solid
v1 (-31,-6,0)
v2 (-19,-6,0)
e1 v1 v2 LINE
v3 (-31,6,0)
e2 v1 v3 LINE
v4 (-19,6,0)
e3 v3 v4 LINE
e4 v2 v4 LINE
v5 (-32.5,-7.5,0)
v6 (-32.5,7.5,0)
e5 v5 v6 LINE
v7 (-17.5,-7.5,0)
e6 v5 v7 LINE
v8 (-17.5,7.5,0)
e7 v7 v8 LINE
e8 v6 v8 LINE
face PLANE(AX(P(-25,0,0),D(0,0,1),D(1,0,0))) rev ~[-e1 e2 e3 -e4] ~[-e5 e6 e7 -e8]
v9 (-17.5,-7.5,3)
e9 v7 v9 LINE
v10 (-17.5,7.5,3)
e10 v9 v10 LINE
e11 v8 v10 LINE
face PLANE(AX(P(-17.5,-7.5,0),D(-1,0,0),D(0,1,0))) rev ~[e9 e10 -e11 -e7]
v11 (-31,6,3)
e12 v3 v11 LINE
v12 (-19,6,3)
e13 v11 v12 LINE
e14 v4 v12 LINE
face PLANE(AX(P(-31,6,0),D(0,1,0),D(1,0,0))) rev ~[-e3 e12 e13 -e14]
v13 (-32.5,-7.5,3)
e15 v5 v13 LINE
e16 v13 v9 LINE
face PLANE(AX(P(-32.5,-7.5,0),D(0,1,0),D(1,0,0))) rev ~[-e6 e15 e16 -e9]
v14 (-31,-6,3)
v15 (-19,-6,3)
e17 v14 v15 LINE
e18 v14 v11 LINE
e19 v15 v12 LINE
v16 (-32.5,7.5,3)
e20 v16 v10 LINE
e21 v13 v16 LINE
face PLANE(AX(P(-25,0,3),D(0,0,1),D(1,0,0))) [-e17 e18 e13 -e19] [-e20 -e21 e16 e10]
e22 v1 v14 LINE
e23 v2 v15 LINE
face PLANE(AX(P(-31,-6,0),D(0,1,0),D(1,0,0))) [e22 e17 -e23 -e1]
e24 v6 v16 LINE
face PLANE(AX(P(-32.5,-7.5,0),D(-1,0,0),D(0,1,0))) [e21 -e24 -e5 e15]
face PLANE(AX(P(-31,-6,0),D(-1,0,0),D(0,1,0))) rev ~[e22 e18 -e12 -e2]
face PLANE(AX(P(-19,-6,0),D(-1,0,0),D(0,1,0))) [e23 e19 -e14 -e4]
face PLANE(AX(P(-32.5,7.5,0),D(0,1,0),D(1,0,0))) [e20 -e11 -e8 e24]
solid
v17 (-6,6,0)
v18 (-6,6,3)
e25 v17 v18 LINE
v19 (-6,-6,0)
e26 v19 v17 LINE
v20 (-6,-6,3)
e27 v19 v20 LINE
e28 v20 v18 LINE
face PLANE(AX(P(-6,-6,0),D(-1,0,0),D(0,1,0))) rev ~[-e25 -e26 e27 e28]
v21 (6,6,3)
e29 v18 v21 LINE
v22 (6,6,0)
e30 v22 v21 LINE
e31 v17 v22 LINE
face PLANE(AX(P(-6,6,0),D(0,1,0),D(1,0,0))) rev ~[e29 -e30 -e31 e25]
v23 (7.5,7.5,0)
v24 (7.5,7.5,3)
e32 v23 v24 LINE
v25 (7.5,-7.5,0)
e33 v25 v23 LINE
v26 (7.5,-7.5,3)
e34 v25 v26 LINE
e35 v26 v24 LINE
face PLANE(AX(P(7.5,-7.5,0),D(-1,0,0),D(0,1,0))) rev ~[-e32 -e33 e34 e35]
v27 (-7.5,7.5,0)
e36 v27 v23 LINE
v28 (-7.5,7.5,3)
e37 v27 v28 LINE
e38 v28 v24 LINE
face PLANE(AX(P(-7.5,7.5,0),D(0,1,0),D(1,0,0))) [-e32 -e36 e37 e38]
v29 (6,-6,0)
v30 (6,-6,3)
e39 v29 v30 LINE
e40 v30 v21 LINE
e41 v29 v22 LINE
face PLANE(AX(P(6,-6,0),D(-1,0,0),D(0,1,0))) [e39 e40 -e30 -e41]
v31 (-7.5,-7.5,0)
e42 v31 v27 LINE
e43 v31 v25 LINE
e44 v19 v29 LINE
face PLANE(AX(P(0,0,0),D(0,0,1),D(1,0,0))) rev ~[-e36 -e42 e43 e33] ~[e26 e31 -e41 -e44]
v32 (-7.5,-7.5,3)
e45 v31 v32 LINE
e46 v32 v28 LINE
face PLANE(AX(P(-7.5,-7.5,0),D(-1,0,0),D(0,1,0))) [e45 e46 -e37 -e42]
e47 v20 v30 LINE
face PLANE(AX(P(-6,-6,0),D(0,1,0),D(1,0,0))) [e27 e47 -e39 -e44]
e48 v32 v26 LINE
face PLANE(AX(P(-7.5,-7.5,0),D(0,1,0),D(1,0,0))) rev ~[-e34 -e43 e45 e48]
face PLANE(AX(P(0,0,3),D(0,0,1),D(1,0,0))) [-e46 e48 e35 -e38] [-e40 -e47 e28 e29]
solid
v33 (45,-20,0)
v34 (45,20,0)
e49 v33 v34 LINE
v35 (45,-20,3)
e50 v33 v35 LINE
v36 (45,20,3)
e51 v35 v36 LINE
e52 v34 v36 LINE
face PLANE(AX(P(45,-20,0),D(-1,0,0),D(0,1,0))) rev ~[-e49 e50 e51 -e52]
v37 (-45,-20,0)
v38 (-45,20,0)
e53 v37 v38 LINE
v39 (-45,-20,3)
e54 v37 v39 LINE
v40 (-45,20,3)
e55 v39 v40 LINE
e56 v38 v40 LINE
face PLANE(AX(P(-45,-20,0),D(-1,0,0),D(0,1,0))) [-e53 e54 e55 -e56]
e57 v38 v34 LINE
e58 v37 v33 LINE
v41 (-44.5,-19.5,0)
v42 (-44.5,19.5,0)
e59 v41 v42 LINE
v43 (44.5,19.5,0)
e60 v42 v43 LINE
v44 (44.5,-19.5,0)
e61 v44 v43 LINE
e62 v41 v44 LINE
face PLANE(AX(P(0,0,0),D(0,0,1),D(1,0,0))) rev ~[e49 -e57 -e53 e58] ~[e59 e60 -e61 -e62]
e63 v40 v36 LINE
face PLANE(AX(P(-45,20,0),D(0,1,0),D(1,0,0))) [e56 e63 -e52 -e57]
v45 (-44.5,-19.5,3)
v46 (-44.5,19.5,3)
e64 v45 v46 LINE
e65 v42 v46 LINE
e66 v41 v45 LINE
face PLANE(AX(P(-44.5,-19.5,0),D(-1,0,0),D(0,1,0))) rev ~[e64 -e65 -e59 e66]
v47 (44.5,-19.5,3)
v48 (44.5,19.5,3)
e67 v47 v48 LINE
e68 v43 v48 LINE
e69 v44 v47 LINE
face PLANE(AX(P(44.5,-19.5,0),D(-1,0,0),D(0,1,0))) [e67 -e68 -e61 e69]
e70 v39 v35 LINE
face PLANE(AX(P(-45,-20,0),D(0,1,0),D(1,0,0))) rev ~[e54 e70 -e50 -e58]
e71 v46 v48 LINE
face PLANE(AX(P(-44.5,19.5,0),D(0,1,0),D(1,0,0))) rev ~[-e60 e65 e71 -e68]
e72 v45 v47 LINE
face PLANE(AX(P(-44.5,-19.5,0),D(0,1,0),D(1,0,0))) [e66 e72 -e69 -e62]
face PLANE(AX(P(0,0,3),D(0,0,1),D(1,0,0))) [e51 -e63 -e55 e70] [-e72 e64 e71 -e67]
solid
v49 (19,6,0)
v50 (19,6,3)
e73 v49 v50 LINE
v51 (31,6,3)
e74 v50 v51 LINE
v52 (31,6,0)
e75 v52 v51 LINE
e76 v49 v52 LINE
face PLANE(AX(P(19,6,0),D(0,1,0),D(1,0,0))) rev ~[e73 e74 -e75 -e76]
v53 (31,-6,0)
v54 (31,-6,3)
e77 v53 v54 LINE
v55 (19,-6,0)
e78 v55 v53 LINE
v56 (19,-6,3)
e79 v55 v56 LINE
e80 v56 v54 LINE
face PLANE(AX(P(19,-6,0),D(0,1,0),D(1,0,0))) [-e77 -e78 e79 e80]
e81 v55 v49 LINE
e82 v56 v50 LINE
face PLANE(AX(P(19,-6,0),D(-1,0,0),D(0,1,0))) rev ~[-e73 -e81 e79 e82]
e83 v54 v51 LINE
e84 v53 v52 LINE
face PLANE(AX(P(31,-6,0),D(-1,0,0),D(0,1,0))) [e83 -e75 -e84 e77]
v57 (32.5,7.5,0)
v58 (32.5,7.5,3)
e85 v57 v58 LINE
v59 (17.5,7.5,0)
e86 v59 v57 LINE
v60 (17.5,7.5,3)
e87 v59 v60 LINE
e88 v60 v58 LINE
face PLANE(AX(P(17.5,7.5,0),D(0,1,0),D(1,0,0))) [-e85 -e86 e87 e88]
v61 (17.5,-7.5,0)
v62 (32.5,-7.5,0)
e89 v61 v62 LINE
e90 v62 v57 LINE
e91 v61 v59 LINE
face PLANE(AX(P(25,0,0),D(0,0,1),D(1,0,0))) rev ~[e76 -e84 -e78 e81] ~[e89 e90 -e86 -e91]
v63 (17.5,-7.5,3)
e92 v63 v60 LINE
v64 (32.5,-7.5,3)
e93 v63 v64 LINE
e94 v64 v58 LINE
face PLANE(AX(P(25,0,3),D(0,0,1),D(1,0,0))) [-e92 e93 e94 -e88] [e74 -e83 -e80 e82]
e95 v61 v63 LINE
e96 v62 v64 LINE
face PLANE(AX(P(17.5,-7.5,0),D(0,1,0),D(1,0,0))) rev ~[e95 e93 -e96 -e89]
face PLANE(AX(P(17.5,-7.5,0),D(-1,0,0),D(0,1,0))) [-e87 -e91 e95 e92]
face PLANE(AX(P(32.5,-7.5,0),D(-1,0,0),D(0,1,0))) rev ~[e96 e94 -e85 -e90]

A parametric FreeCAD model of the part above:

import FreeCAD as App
import Part
import Sketcher
from FreeCAD import Vector
Q = App.Units.Quantity

doc = App.newDocument("Part")
body = doc.addObject("PartDesign::Body", "Body")
body.AllowCompound = True

sketch1 = doc.addObject("Sketcher::SketchObject", "Sketch")
body.addObject(sketch1)
sketch1.AttachmentSupport = (doc.XY_Plane, [""])
sketch1.MapMode = "FlatFace"
sketch1.addGeometry([
    Part.LineSegment(Vector(-7.5, 7.5, 0), Vector(-7.5, -7.5, 0)),
    Part.LineSegment(Vector(-7.5, -7.5, 0), Vector(7.5, -7.5, 0)),
    Part.LineSegment(Vector(7.5, -7.5, 0), Vector(7.5, 7.5, 0)),
    Part.LineSegment(Vector(7.5, 7.5, 0), Vector(-7.5, 7.5, 0)),
    Part.LineSegment(Vector(6, -6, 0), Vector(-6, -6, 0)),
    Part.LineSegment(Vector(-6, -6, 0), Vector(-6, 6, 0)),
    Part.LineSegment(Vector(-6, 6, 0), Vector(6, 6, 0)),
    Part.LineSegment(Vector(6, 6, 0), Vector(6, -6, 0)),
    Part.LineSegment(Vector(17.5, 7.5, 0), Vector(17.5, -7.5, 0)),
    Part.LineSegment(Vector(17.5, -7.5, 0), Vector(32.5, -7.5, 0)),
    Part.LineSegment(Vector(32.5, -7.5, 0), Vector(32.5, 7.5, 0)),
    Part.LineSegment(Vector(32.5, 7.5, 0), Vector(17.5, 7.5, 0)),
    Part.LineSegment(Vector(31, -6, 0), Vector(19, -6, 0)),
    Part.LineSegment(Vector(19, -6, 0), Vector(19, 6, 0)),
    Part.LineSegment(Vector(19, 6, 0), Vector(31, 6, 0)),
    Part.LineSegment(Vector(31, 6, 0), Vector(31, -6, 0)),
    Part.LineSegment(Vector(-32.5, 7.5, 0), Vector(-32.5, -7.5, 0)),
    Part.LineSegment(Vector(-32.5, -7.5, 0), Vector(-17.5, -7.5, 0)),
    Part.LineSegment(Vector(-17.5, -7.5, 0), Vector(-17.5, 7.5, 0)),
    Part.LineSegment(Vector(-17.5, 7.5, 0), Vector(-32.5, 7.5, 0)),
    Part.LineSegment(Vector(-19, -6, 0), Vector(-31, -6, 0)),
    Part.LineSegment(Vector(-31, -6, 0), Vector(-31, 6, 0)),
    Part.LineSegment(Vector(-31, 6, 0), Vector(-19, 6, 0)),
    Part.LineSegment(Vector(-19, 6, 0), Vector(-19, -6, 0)),
], False)
sketch1.addConstraint([
    Sketcher.Constraint("Coincident", 0, 2, 1, 1),
    Sketcher.Constraint("Coincident", 1, 2, 2, 1),
    Sketcher.Constraint("Coincident", 2, 2, 3, 1),
    Sketcher.Constraint("Coincident", 3, 2, 0, 1),
    Sketcher.Constraint("Coincident", 4, 2, 5, 1),
    Sketcher.Constraint("Coincident", 5, 2, 6, 1),
    Sketcher.Constraint("Coincident", 6, 2, 7, 1),
    Sketcher.Constraint("Coincident", 7, 2, 4, 1),
    Sketcher.Constraint("Coincident", 8, 2, 9, 1),
    Sketcher.Constraint("Coincident", 9, 2, 10, 1),
    Sketcher.Constraint("Coincident", 10, 2, 11, 1),
    Sketcher.Constraint("Coincident", 11, 2, 8, 1),
    Sketcher.Constraint("Coincident", 12, 2, 13, 1),
    Sketcher.Constraint("Coincident", 13, 2, 14, 1),
    Sketcher.Constraint("Coincident", 14, 2, 15, 1),
    Sketcher.Constraint("Coincident", 15, 2, 12, 1),
    Sketcher.Constraint("Coincident", 16, 2, 17, 1),
    Sketcher.Constraint("Coincident", 17, 2, 18, 1),
    Sketcher.Constraint("Coincident", 18, 2, 19, 1),
    Sketcher.Constraint("Coincident", 19, 2, 16, 1),
    Sketcher.Constraint("Coincident", 20, 2, 21, 1),
    Sketcher.Constraint("Coincident", 21, 2, 22, 1),
    Sketcher.Constraint("Coincident", 22, 2, 23, 1),
    Sketcher.Constraint("Coincident", 23, 2, 20, 1),
    Sketcher.Constraint("Vertical", 0),
    Sketcher.Constraint("Horizontal", 1),
    Sketcher.Constraint("Vertical", 2),
    Sketcher.Constraint("Horizontal", 3),
    Sketcher.Constraint("Horizontal", 4),
    Sketcher.Constraint("Vertical", 5),
    Sketcher.Constraint("Horizontal", 6),
    Sketcher.Constraint("Vertical", 7),
    Sketcher.Constraint("Vertical", 8),
    Sketcher.Constraint("Horizontal", 9),
    Sketcher.Constraint("Vertical", 10),
    Sketcher.Constraint("Horizontal", 11),
    Sketcher.Constraint("Horizontal", 12),
    Sketcher.Constraint("Vertical", 13),
    Sketcher.Constraint("Horizontal", 14),
    Sketcher.Constraint("Vertical", 15),
    Sketcher.Constraint("Vertical", 16),
    Sketcher.Constraint("Horizontal", 17),
    Sketcher.Constraint("Vertical", 18),
    Sketcher.Constraint("Horizontal", 19),
    Sketcher.Constraint("Horizontal", 20),
    Sketcher.Constraint("Vertical", 21),
    Sketcher.Constraint("Horizontal", 22),
    Sketcher.Constraint("Vertical", 23),
    Sketcher.Constraint("Symmetric", 0, 2, 2, 2, -1, 1),
    Sketcher.Constraint("Symmetric", 4, 2, 6, 2, -1, 1),
    Sketcher.Constraint("Symmetric", 10, 2, 16, 2, -1, 1),
    Sketcher.Constraint("Symmetric", 8, 2, 18, 2, -1, 1),
    Sketcher.Constraint("Symmetric", 14, 2, 20, 2, -1, 1),
    Sketcher.Constraint("Symmetric", 12, 2, 22, 2, -1, 1),
    Sketcher.Constraint("Horizontal", 1, 2, 8, 2),
    Sketcher.Constraint("Horizontal", 3, 2, 10, 2),
    Sketcher.Constraint("Horizontal", 7, 2, 12, 2),
    Sketcher.Constraint("Horizontal", 6, 2, 13, 2),
    Sketcher.Constraint("Equal", 3, 9),
    Sketcher.Constraint("Equal", 6, 12),
    Sketcher.Constraint("Equal", 19, 0),
    Sketcher.Constraint("Equal", 22, 5),
    Sketcher.Constraint("DistanceX", 1, 1, 1, 2, Q("15 mm")),
    Sketcher.Constraint("DistanceX", 4, 2, 4, 1, Q("12 mm")),
    Sketcher.Constraint("DistanceX", -1, 1, 12, 2, Q("19 mm")),
    Sketcher.Constraint("DistanceX", 1, 2, 8, 2, Q("10 mm")),
])
pad1 = doc.addObject("PartDesign::Pad", "Pad")
body.addObject(pad1)
pad1.Profile = sketch1
pad1.Length = 3
body2 = doc.addObject("PartDesign::Body", "Body001")

sketch2 = doc.addObject("Sketcher::SketchObject", "Sketch001")
body2.addObject(sketch2)
sketch2.AttachmentSupport = (doc.getObject("XY_Plane001"), [""])
sketch2.MapMode = "FlatFace"
sketch2.addGeometry([
    Part.LineSegment(Vector(-45, 20, 0), Vector(-45, -20, 0)),
    Part.LineSegment(Vector(-45, -20, 0), Vector(45, -20, 0)),
    Part.LineSegment(Vector(45, -20, 0), Vector(45, 20, 0)),
    Part.LineSegment(Vector(45, 20, 0), Vector(-45, 20, 0)),
    Part.LineSegment(Vector(44.5, -19.5, 0), Vector(-44.5, -19.5, 0)),
    Part.LineSegment(Vector(-44.5, -19.5, 0), Vector(-44.5, 19.5, 0)),
    Part.LineSegment(Vector(-44.5, 19.5, 0), Vector(44.5, 19.5, 0)),
    Part.LineSegment(Vector(44.5, 19.5, 0), Vector(44.5, -19.5, 0)),
], False)
sketch2.addConstraint([
    Sketcher.Constraint("Coincident", 0, 2, 1, 1),
    Sketcher.Constraint("Coincident", 1, 2, 2, 1),
    Sketcher.Constraint("Coincident", 2, 2, 3, 1),
    Sketcher.Constraint("Coincident", 3, 2, 0, 1),
    Sketcher.Constraint("Coincident", 4, 2, 5, 1),
    Sketcher.Constraint("Coincident", 5, 2, 6, 1),
    Sketcher.Constraint("Coincident", 6, 2, 7, 1),
    Sketcher.Constraint("Coincident", 7, 2, 4, 1),
    Sketcher.Constraint("Vertical", 0),
    Sketcher.Constraint("Horizontal", 1),
    Sketcher.Constraint("Vertical", 2),
    Sketcher.Constraint("Horizontal", 3),
    Sketcher.Constraint("Horizontal", 4),
    Sketcher.Constraint("Vertical", 5),
    Sketcher.Constraint("Horizontal", 6),
    Sketcher.Constraint("Vertical", 7),
    Sketcher.Constraint("Symmetric", 0, 2, 2, 2, -1, 1),
    Sketcher.Constraint("Symmetric", 4, 2, 6, 2, -1, 1),
    Sketcher.Constraint("DistanceX", 1, 1, 1, 2, Q("90 mm")),
    Sketcher.Constraint("DistanceX", 4, 2, 4, 1, Q("89 mm")),
    Sketcher.Constraint("DistanceY", 0, 2, 0, 1, Q("40 mm")),
    Sketcher.Constraint("DistanceY", 5, 1, 5, 2, Q("39 mm")),
])
pad2 = doc.addObject("PartDesign::Pad", "Pad001")
body2.addObject(pad2)
pad2.Profile = sketch2
pad2.Length = 3

doc.recompute()
